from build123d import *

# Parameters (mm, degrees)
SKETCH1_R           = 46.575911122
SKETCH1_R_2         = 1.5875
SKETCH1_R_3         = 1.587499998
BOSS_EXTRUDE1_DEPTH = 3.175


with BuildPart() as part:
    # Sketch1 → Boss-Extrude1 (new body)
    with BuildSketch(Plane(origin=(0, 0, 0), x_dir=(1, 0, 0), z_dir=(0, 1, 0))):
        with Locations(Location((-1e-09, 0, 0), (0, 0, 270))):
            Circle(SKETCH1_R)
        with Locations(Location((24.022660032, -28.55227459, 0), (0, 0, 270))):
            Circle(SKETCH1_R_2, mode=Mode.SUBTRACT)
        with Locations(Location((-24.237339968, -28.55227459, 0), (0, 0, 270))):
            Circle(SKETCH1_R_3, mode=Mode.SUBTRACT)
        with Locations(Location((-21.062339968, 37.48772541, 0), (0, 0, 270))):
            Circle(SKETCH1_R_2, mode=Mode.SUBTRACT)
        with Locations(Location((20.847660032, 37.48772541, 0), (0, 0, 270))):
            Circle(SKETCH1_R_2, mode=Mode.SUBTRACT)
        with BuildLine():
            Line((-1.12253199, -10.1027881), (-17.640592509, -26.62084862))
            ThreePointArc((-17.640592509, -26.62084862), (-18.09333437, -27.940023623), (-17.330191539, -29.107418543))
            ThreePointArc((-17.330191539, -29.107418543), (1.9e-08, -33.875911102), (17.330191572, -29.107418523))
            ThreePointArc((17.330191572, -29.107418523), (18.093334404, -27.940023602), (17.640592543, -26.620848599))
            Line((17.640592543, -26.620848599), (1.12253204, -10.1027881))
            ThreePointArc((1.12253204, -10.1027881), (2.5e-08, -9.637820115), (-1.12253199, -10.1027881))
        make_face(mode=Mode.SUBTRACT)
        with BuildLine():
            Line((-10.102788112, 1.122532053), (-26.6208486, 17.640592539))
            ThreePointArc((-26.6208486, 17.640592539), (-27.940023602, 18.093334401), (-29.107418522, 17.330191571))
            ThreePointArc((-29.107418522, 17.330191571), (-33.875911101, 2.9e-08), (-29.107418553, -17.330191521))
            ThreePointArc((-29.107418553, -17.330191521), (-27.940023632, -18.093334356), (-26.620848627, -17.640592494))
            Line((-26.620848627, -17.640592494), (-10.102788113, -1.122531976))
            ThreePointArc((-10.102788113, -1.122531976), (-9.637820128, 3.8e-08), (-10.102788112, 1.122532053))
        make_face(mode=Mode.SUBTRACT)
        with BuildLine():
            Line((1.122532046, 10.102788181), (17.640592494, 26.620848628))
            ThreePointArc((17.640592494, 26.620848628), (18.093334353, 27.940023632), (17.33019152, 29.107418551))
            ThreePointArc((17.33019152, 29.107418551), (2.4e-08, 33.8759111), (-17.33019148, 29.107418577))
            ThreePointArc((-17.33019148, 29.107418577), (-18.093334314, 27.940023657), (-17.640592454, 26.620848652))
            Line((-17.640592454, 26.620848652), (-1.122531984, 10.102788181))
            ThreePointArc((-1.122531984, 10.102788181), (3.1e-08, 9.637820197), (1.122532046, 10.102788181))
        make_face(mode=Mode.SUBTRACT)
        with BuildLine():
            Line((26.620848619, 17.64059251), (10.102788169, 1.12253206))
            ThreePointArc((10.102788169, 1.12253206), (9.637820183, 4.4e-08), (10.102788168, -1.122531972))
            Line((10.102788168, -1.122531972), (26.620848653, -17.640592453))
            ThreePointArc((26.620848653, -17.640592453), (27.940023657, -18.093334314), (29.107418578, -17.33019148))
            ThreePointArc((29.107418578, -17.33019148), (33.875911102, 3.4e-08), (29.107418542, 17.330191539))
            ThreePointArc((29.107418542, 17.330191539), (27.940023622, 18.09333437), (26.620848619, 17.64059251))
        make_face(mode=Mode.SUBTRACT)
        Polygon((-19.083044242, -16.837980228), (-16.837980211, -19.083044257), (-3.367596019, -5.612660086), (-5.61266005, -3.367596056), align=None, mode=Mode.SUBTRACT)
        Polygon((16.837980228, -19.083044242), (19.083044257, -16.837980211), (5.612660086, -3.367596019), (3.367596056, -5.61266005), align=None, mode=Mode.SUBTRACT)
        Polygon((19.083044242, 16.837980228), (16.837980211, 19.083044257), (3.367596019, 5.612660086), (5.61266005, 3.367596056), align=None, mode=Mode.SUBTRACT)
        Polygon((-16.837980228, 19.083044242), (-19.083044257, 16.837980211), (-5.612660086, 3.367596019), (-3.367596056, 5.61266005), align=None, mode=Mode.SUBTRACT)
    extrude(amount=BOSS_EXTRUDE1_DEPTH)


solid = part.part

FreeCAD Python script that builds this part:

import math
import FreeCAD as App
import Part
import Sketcher
Q = App.Units.Quantity


def add_polygon(sketch, points):
    """Adds a closed chain of lines whose ends are joined by coincident constraints."""
    first, n = sketch.GeometryCount, len(points)
    for a, b in zip(points, points[1:] + points[:1]):
        sketch.addGeometry(Part.LineSegment(App.Vector(*a, 0), App.Vector(*b, 0)), False)
    for i in range(n):
        sketch.addConstraint(Sketcher.Constraint("Coincident", first + i, 2, first + (i + 1) % n, 1))

doc = App.newDocument("Part")
body = doc.addObject("PartDesign::Body", "Body")

sketch1 = doc.addObject("Sketcher::SketchObject", "Sketch")
body.addObject(sketch1)
sketch1.AttachmentSupport = (doc.XZ_Plane, [""])
sketch1.MapMode = "FlatFace"
sketch1.addGeometry(Part.Circle(App.Vector(0, 0, 0), App.Vector(0, 0, 1), 46.6), False)
sketch1.addGeometry(Part.Circle(App.Vector(-21.1, -37.5, 0), App.Vector(0, 0, 1), 1.6), False)
add_polygon(sketch1, [(-19.1, -16.8), (-16.8, -19.1), (-3.4, -5.6), (-5.6, -3.4)])
sketch1.addGeometry(Part.LineSegment(App.Vector(-26.6, -17.6, 0), App.Vector(-10.1, -1.1, 0)), False)
sketch1.addGeometry(Part.ArcOfCircle(Part.Circle(App.Vector(-11.2, 0, 0), App.Vector(0, 0, 1), 1.6), math.radians(-45), math.radians(45)), False)
sketch1.addGeometry(Part.LineSegment(App.Vector(-10.1, 1.1, 0), App.Vector(-26.6, 17.6, 0)), False)
sketch1.addGeometry(Part.ArcOfCircle(Part.Circle(App.Vector(-27.7, 16.5, 0), App.Vector(0, 0, 1), 1.6), math.radians(45), math.radians(149)), False)
sketch1.addGeometry(Part.ArcOfCircle(Part.Circle(App.Vector(0, 0, 0), App.Vector(0, 0, 1), 33.9), math.radians(149), math.radians(211)), False)
sketch1.addGeometry(Part.ArcOfCircle(Part.Circle(App.Vector(-27.7, -16.5, 0), App.Vector(0, 0, 1), 1.6), math.radians(-149), math.radians(-45)), False)
sketch1.addGeometry(Part.Circle(App.Vector(-24.2, 28.6, 0), App.Vector(0, 0, 1), 1.6), False)
add_polygon(sketch1, [(-16.8, 19.1), (-19.1, 16.8), (-5.6, 3.4), (-3.4, 5.6)])
sketch1.addGeometry(Part.LineSegment(App.Vector(17.6, -26.6, 0), App.Vector(1.1, -10.1, 0)), False)
sketch1.addGeometry(Part.ArcOfCircle(Part.Circle(App.Vector(0, -11.2, 0), App.Vector(0, 0, 1), 1.6), math.radians(45), math.radians(135)), False)
sketch1.addGeometry(Part.LineSegment(App.Vector(-1.1, -10.1, 0), App.Vector(-17.6, -26.6, 0)), False)
sketch1.addGeometry(Part.ArcOfCircle(Part.Circle(App.Vector(-16.5, -27.7, 0), App.Vector(0, 0, 1), 1.6), math.radians(135), math.radians(239)), False)
sketch1.addGeometry(Part.ArcOfCircle(Part.Circle(App.Vector(0, 0, 0), App.Vector(0, 0, 1), 33.9), math.radians(-121), math.radians(-59)), False)
sketch1.addGeometry(Part.ArcOfCircle(Part.Circle(App.Vector(16.5, -27.7, 0), App.Vector(0, 0, 1), 1.6), math.radians(-59), math.radians(45)), False)
add_polygon(sketch1, [(16.8, -19.1), (19.1, -16.8), (5.6, -3.4), (3.4, -5.6)])
sketch1.addGeometry(Part.Circle(App.Vector(20.8, -37.5, 0), App.Vector(0, 0, 1), 1.6), False)
add_polygon(sketch1, [(19.1, 16.8), (16.8, 19.1), (3.4, 5.6), (5.6, 3.4)])
sketch1.addGeometry(Part.LineSegment(App.Vector(-17.6, 26.6, 0), App.Vector(-1.1, 10.1, 0)), False)
sketch1.addGeometry(Part.ArcOfCircle(Part.Circle(App.Vector(0, 11.2, 0), App.Vector(0, 0, 1), 1.6), math.radians(-135), math.radians(-45)), False)
sketch1.addGeometry(Part.LineSegment(App.Vector(1.1, 10.1, 0), App.Vector(17.6, 26.6, 0)), False)
sketch1.addGeometry(Part.ArcOfCircle(Part.Circle(App.Vector(16.5, 27.7, 0), App.Vector(0, 0, 1), 1.6), math.radians(-45), math.radians(59)), False)
sketch1.addGeometry(Part.ArcOfCircle(Part.Circle(App.Vector(0, 0, 0), App.Vector(0, 0, 1), 33.9), math.radians(59), math.radians(121)), False)
sketch1.addGeometry(Part.ArcOfCircle(Part.Circle(App.Vector(-16.5, 27.7, 0), App.Vector(0, 0, 1), 1.6), math.radians(121), math.radians(225)), False)
sketch1.addGeometry(Part.LineSegment(App.Vector(10.1, -1.1, 0), App.Vector(26.6, -17.6, 0)), False)
sketch1.addGeometry(Part.ArcOfCircle(Part.Circle(App.Vector(27.7, -16.5, 0), App.Vector(0, 0, 1), 1.6), math.radians(-135), math.radians(-31)), False)
sketch1.addGeometry(Part.ArcOfCircle(Part.Circle(App.Vector(0, 0, 0), App.Vector(0, 0, 1), 33.9), math.radians(-31), math.radians(31)), False)
sketch1.addGeometry(Part.ArcOfCircle(Part.Circle(App.Vector(27.7, 16.5, 0), App.Vector(0, 0, 1), 1.6), math.radians(31), math.radians(135)), False)
sketch1.addGeometry(Part.LineSegment(App.Vector(26.6, 17.6, 0), App.Vector(10.1, 1.1, 0)), False)
sketch1.addGeometry(Part.ArcOfCircle(Part.Circle(App.Vector(11.2, 0, 0), App.Vector(0, 0, 1), 1.6), math.radians(135), math.radians(225)), False)
sketch1.addGeometry(Part.Circle(App.Vector(24, 28.6, 0), App.Vector(0, 0, 1), 1.6), False)
sketch1.addConstraint(Sketcher.Constraint("Tangent", 6, 2, 7, 1))
sketch1.addConstraint(Sketcher.Constraint("Tangent", 7, 2, 8, 1))
sketch1.addConstraint(Sketcher.Constraint("Tangent", 8, 2, 9, 1))
sketch1.addConstraint(Sketcher.Constraint("Tangent", 9, 2, 10, 1))
sketch1.addConstraint(Sketcher.Constraint("Tangent", 10, 2, 11, 1))
sketch1.addConstraint(Sketcher.Constraint("Tangent", 11, 2, 6, 1))
sketch1.addConstraint(Sketcher.Constraint("Tangent", 17, 2, 18, 1))
sketch1.addConstraint(Sketcher.Constraint("Tangent", 18, 2, 19, 1))
sketch1.addConstraint(Sketcher.Constraint("Tangent", 19, 2, 20, 1))
sketch1.addConstraint(Sketcher.Constraint("Tangent", 20, 2, 21, 1))
sketch1.addConstraint(Sketcher.Constraint("Tangent", 21, 2, 22, 1))
sketch1.addConstraint(Sketcher.Constraint("Tangent", 22, 2, 17, 1))
sketch1.addConstraint(Sketcher.Constraint("Tangent", 32, 2, 33, 1))
sketch1.addConstraint(Sketcher.Constraint("Tangent", 33, 2, 34, 1))
sketch1.addConstraint(Sketcher.Constraint("Tangent", 34, 2, 35, 1))
sketch1.addConstraint(Sketcher.Constraint("Tangent", 35, 2, 36, 1))
sketch1.addConstraint(Sketcher.Constraint("Tangent", 36, 2, 37, 1))
sketch1.addConstraint(Sketcher.Constraint("Tangent", 37, 2, 32, 1))
sketch1.addConstraint(Sketcher.Constraint("Tangent", 38, 2, 39, 1))
sketch1.addConstraint(Sketcher.Constraint("Tangent", 39, 2, 40, 1))
sketch1.addConstraint(Sketcher.Constraint("Tangent", 40, 2, 41, 1))
sketch1.addConstraint(Sketcher.Constraint("Tangent", 41, 2, 42, 1))
sketch1.addConstraint(Sketcher.Constraint("Tangent", 42, 2, 43, 1))
sketch1.addConstraint(Sketcher.Constraint("Tangent", 43, 2, 38, 1))
sketch1.addConstraint(Sketcher.Constraint("Coincident", 0, 3, -1, 1))
sketch1.addConstraint(Sketcher.Constraint("Coincident", 10, 3, -1, 1))
sketch1.addConstraint(Sketcher.Constraint("Coincident", 21, 3, -1, 1))
sketch1.addConstraint(Sketcher.Constraint("Coincident", 36, 3, -1, 1))
sketch1.addConstraint(Sketcher.Constraint("Coincident", 40, 3, -1, 1))
sketch1.addConstraint(Sketcher.Constraint("Equal", 1, 7))
sketch1.addConstraint(Sketcher.Constraint("Equal", 7, 9))
sketch1.addConstraint(Sketcher.Constraint("Equal", 9, 11))
sketch1.addConstraint(Sketcher.Constraint("Equal", 11, 12))
sketch1.addConstraint(Sketcher.Constraint("Equal", 12, 18))
sketch1.addConstraint(Sketcher.Constraint("Equal", 18, 20))
sketch1.addConstraint(Sketcher.Constraint("Equal", 10, 21))
sketch1.addConstraint(Sketcher.Constraint("Equal", 20, 22))
sketch1.addConstraint(Sketcher.Constraint("Equal", 22, 27))
sketch1.addConstraint(Sketcher.Constraint("Equal", 27, 33))
sketch1.addConstraint(Sketcher.Constraint("Equal", 33, 35))
sketch1.addConstraint(Sketcher.Constraint("Equal", 21, 36))
sketch1.addConstraint(Sketcher.Constraint("Equal", 35, 37))
sketch1.addConstraint(Sketcher.Constraint("Equal", 37, 39))
sketch1.addConstraint(Sketcher.Constraint("Equal", 36, 40))
sketch1.addConstraint(Sketcher.Constraint("Equal", 39, 41))
sketch1.addConstraint(Sketcher.Constraint("Equal", 41, 43))
sketch1.addConstraint(Sketcher.Constraint("Equal", 43, 44))
sketch1.addConstraint(Sketcher.Constraint("Symmetric", 18, 3, 33, 3, -1, 1))
sketch1.addConstraint(Sketcher.Constraint("Symmetric", 7, 3, 43, 3, -1, 1))
sketch1.addConstraint(Sketcher.Constraint("Symmetric", 13, 2, 23, 2, -1, 1))
sketch1.addConstraint(Sketcher.Constraint("Symmetric", 14, 2, 24, 2, -1, 1))
sketch1.addConstraint(Sketcher.Constraint("Symmetric", 15, 2, 25, 2, -1, 1))
sketch1.addConstraint(Sketcher.Constraint("Symmetric", 16, 2, 26, 2, -1, 1))
sketch1.addConstraint(Sketcher.Constraint("Symmetric", 2, 2, 28, 2, -1, 1))
sketch1.addConstraint(Sketcher.Constraint("Symmetric", 3, 2, 29, 2, -1, 1))
sketch1.addConstraint(Sketcher.Constraint("Symmetric", 4, 2, 30, 2, -1, 1))
sketch1.addConstraint(Sketcher.Constraint("Symmetric", 5, 2, 31, 2, -1, 1))
sketch1.addConstraint(Sketcher.Constraint("Symmetric", 17, 2, 18, 2, -2))
sketch1.addConstraint(Sketcher.Constraint("Symmetric", 5, 2, 23, 2, -2))
sketch1.addConstraint(Sketcher.Constraint("Symmetric", 4, 2, 24, 2, -2))
sketch1.addConstraint(Sketcher.Constraint("Symmetric", 3, 2, 25, 2, -2))
sketch1.addConstraint(Sketcher.Constraint("Symmetric", 2, 2, 26, 2, -2))
sketch1.addConstraint(Sketcher.Constraint("Symmetric", 11, 2, 38, 2, -2))
sketch1.addConstraint(Sketcher.Constraint("Perpendicular", 2, 3))
sketch1.addConstraint(Sketcher.Constraint("Perpendicular", 3, 4))
sketch1.addConstraint(Sketcher.Constraint("Perpendicular", 4, 5))
sketch1.addConstraint(Sketcher.Constraint("Parallel", 5, 6))
sketch1.addConstraint(Sketcher.Constraint("Perpendicular", 6, 8))
sketch1.addConstraint(Sketcher.Constraint("Perpendicular", 8, 13))
sketch1.addConstraint(Sketcher.Constraint("Parallel", 16, 17))
sketch1.addConstraint(Sketcher.Constraint("Perpendicular", 31, 32))
sketch1.addConstraint(Sketcher.Constraint("Perpendicular", 32, 34))
sketch1.addConstraint(Sketcher.Constraint("Perpendicular", 38, 42))
sketch1.addConstraint(Sketcher.Constraint("Horizontal", 1, 3, 27, 3))
sketch1.addConstraint(Sketcher.Constraint("Horizontal", 12, 3, 44, 3))
sketch1.addConstraint(Sketcher.Constraint("Equal", 8, 17))
sketch1.addConstraint(Sketcher.Constraint("Diameter", 1, Q("0.125 in")))
sketch1.addConstraint(Sketcher.Constraint("Distance", 3, Q("0.75 in")))
sketch1.addConstraint(Sketcher.Constraint("Distance", 2, Q("0.125 in")))
sketch1.addConstraint(Sketcher.Constraint("Radius", 10, Q("33.875911 mm")))
sketch1.addConstraint(Sketcher.Constraint("Diameter", 0, Q("93.151822 mm")))
sketch1.addConstraint(Sketcher.Constraint("DistanceX", 1, 3, -1, 1, Q("21.06234 mm")))
sketch1.addConstraint(Sketcher.Constraint("DistanceX", 7, 3, -1, 1, Q("11.22532 mm")))
sketch1.addConstraint(Sketcher.Constraint("DistanceX", 12, 3, -1, 1, Q("24.23734 mm")))
sketch1.addConstraint(Sketcher.Constraint("DistanceX", -1, 1, 27, 3, Q("20.84766 mm")))
sketch1.addConstraint(Sketcher.Constraint("DistanceX", -1, 1, 44, 3, Q("24.02266 mm")))
sketch1.addConstraint(Sketcher.Constraint("DistanceX", 2, 2, -1, 1, Q("16.83798 mm")))
sketch1.addConstraint(Sketcher.Constraint("DistanceY", 3, 2, -1, 1, Q("5.61266 mm")))
sketch1.addConstraint(Sketcher.Constraint("DistanceY", 1, 3, -1, 1, Q("37.487725 mm")))
sketch1.addConstraint(Sketcher.Constraint("DistanceY", -1, 1, 12, 3, Q("28.552275 mm")))
pad1 = doc.addObject("PartDesign::Pad", "Pad")
body.addObject(pad1)
pad1.Profile = sketch1
pad1.Length = Q("0.125 in")
pad1.Reversed = True

doc.recompute()
